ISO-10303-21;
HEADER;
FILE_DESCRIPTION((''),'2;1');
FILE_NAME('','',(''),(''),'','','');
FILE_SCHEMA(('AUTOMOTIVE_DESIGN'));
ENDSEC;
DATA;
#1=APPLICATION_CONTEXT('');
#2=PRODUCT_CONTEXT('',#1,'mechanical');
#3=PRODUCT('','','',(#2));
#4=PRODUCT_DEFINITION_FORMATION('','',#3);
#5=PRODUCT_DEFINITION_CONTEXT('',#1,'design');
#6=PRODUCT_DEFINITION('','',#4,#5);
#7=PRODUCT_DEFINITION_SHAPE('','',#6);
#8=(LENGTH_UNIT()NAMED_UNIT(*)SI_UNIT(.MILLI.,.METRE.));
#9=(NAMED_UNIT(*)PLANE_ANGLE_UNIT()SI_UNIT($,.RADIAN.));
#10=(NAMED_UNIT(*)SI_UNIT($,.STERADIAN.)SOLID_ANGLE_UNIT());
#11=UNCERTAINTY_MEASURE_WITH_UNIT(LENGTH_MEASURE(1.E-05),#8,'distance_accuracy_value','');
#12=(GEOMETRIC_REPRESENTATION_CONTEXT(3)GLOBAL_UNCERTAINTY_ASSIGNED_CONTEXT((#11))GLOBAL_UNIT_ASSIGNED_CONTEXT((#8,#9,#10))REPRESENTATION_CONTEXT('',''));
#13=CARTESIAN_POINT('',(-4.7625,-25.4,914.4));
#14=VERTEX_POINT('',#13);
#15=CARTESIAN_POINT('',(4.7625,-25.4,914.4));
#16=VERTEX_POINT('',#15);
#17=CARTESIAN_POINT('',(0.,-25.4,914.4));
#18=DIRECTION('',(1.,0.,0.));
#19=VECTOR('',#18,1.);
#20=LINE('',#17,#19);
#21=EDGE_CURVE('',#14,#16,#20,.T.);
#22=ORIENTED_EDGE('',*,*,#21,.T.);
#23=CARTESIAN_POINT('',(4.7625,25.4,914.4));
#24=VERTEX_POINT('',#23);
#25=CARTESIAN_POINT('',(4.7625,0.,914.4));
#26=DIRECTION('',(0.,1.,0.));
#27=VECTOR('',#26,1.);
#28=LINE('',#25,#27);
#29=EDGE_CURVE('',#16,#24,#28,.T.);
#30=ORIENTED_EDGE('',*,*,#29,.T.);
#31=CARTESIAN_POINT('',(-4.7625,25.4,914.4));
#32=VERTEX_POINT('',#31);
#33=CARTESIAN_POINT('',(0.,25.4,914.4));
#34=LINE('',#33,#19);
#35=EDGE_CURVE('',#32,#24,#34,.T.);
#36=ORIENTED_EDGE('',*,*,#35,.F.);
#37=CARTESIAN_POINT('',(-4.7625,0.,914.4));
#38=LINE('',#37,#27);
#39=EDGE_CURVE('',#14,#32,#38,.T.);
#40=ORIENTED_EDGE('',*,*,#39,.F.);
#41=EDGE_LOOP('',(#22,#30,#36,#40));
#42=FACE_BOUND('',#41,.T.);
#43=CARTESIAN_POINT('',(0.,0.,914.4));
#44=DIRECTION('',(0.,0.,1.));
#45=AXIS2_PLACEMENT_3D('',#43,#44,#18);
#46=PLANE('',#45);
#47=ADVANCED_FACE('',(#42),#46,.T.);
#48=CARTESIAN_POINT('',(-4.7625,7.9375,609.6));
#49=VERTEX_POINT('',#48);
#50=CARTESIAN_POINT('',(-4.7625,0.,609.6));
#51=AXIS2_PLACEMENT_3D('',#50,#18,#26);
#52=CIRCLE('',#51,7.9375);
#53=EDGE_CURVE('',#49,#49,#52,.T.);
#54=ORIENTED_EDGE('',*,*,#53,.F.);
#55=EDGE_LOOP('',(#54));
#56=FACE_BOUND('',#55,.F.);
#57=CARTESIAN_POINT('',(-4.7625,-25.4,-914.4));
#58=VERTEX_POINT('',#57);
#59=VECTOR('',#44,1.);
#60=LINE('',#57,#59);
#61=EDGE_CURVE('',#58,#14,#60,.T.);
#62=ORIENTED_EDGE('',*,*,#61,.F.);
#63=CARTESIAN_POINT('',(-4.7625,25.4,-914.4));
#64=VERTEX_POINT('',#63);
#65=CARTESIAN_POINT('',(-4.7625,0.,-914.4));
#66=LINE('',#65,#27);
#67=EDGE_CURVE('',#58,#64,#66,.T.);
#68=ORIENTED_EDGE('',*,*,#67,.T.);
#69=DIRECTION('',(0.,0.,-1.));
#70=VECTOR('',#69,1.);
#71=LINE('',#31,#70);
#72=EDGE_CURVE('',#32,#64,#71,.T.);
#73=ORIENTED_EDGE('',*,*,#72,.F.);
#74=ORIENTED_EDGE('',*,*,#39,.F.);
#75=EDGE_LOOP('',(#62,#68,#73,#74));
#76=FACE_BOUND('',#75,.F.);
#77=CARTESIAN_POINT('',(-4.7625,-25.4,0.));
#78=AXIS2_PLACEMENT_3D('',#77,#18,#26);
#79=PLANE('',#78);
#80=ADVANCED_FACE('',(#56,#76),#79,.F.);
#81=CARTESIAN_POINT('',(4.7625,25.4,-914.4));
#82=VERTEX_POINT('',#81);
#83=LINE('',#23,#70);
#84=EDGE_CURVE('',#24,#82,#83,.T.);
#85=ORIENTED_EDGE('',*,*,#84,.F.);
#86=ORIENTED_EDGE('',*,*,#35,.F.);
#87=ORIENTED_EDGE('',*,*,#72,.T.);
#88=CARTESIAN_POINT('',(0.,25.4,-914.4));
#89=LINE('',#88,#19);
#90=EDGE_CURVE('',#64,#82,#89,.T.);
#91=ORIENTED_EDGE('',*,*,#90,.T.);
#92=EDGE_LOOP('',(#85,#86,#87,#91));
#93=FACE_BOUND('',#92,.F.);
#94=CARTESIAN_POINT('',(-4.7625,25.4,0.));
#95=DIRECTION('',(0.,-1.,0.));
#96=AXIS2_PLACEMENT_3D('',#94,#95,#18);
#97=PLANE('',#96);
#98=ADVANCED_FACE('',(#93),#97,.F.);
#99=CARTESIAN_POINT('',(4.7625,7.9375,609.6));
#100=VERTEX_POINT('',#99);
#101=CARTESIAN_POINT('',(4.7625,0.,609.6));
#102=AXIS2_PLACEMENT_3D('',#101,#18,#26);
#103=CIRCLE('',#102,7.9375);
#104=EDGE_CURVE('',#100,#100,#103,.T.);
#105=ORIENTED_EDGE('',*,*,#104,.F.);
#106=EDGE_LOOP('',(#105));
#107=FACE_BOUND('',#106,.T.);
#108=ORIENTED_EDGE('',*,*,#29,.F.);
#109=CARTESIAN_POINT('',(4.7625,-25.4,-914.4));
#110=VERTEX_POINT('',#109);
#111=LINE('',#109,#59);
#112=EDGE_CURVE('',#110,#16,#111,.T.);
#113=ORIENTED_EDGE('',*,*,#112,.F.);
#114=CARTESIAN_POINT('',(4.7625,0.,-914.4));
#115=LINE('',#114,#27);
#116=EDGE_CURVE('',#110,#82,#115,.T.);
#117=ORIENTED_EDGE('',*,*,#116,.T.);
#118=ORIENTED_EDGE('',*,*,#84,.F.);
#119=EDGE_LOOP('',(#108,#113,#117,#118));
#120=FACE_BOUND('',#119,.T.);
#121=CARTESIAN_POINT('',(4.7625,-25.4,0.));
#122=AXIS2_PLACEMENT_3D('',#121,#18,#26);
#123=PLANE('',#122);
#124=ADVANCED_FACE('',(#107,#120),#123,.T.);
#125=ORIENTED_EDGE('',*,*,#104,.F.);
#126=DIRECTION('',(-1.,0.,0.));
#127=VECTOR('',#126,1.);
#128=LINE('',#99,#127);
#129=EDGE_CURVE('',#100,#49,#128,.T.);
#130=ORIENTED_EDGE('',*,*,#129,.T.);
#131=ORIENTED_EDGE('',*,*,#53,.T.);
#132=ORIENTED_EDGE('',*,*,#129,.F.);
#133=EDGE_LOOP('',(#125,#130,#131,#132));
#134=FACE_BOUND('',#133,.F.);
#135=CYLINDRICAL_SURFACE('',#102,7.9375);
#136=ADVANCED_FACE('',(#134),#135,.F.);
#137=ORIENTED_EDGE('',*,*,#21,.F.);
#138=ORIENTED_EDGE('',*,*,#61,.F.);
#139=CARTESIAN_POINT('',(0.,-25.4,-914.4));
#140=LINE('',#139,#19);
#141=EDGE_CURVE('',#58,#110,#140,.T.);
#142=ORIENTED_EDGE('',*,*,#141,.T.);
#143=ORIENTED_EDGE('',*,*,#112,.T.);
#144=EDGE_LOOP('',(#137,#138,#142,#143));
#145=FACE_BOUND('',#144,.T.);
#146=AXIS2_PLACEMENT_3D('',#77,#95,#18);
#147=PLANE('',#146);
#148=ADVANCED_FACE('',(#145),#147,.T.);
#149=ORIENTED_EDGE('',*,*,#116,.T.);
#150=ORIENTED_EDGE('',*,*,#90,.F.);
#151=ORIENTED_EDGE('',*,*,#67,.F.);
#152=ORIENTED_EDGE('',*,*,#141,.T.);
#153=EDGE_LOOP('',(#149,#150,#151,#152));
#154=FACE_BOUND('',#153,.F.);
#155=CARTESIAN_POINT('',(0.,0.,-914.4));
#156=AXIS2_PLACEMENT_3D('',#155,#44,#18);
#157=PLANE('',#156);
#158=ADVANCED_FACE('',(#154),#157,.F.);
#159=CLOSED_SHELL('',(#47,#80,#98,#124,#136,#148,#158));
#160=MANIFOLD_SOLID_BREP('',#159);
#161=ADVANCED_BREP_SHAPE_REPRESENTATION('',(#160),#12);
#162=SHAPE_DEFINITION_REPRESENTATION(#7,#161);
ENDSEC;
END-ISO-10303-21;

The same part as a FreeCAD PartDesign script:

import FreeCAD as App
import Part
import Sketcher

V = App.Vector
Q = App.Units.Quantity


def add_polygon(sketch, points):
    """Adds a closed chain of lines whose ends are joined by coincident constraints."""
    first, n = sketch.GeometryCount, len(points)
    for a, b in zip(points, points[1:] + points[:1]):
        sketch.addGeometry(Part.LineSegment(App.Vector(*a, 0), App.Vector(*b, 0)), False)
    for i in range(n):
        sketch.addConstraint(Sketcher.Constraint("Coincident", first + i, 2, first + (i + 1) % n, 1))

doc = App.newDocument("Part")
body = doc.addObject("PartDesign::Body", "Body")

# Sketch on XY plane
sketch1 = doc.addObject("Sketcher::SketchObject", "Sketch")
body.addObject(sketch1)
sketch1.AttachmentSupport = (doc.XY_Plane, [""])
sketch1.MapMode = "FlatFace"
add_polygon(sketch1, [(-4.7625, 25.4), (-4.7625, -25.4), (4.7625, -25.4), (4.7625, 25.4)])  # lines 0-3
sketch1.addConstraint(Sketcher.Constraint("Vertical", 0))
sketch1.addConstraint(Sketcher.Constraint("Horizontal", 1))
sketch1.addConstraint(Sketcher.Constraint("Vertical", 2))
sketch1.addConstraint(Sketcher.Constraint("Horizontal", 3))
sketch1.addConstraint(Sketcher.Constraint("Symmetric", 0, 2, 2, 2, -1, 1))
sketch1.addConstraint(Sketcher.Constraint("DistanceY", 0, 2, 0, 1, Q("2 in")))
sketch1.addConstraint(Sketcher.Constraint("DistanceX", 1, 1, 1, 2, Q("0.375 in")))
pad1 = doc.addObject("PartDesign::Pad", "Pad")
body.addObject(pad1)
pad1.Profile = sketch1
pad1.Length = Q("72 in")
pad1.Midplane = True

# Sketch on YZ plane
sketch2 = doc.addObject("Sketcher::SketchObject", "Sketch001")
body.addObject(sketch2)
sketch2.AttachmentSupport = (doc.YZ_Plane, [""])
sketch2.MapMode = "FlatFace"
sketch2.AttachmentOffset = App.Placement(V(0, 0, 0.1875 * 25.4), App.Rotation())
sketch2.addGeometry(Part.Circle(V(0, 609.6, 0), V(0, 0, 1), 7.9375), False)
sketch2.addConstraint(Sketcher.Constraint("PointOnObject", 0, 3, -2))
sketch2.addConstraint(Sketcher.Constraint("Diameter", 0, Q("0.625 in")))
sketch2.addConstraint(Sketcher.Constraint("DistanceY", -1, 1, 0, 3, Q("24 in")))
pocket1 = doc.addObject("PartDesign::Pocket", "Pocket")
body.addObject(pocket1)
pocket1.Profile = sketch2
pocket1.Type = "ThroughAll"

doc.recompute()
